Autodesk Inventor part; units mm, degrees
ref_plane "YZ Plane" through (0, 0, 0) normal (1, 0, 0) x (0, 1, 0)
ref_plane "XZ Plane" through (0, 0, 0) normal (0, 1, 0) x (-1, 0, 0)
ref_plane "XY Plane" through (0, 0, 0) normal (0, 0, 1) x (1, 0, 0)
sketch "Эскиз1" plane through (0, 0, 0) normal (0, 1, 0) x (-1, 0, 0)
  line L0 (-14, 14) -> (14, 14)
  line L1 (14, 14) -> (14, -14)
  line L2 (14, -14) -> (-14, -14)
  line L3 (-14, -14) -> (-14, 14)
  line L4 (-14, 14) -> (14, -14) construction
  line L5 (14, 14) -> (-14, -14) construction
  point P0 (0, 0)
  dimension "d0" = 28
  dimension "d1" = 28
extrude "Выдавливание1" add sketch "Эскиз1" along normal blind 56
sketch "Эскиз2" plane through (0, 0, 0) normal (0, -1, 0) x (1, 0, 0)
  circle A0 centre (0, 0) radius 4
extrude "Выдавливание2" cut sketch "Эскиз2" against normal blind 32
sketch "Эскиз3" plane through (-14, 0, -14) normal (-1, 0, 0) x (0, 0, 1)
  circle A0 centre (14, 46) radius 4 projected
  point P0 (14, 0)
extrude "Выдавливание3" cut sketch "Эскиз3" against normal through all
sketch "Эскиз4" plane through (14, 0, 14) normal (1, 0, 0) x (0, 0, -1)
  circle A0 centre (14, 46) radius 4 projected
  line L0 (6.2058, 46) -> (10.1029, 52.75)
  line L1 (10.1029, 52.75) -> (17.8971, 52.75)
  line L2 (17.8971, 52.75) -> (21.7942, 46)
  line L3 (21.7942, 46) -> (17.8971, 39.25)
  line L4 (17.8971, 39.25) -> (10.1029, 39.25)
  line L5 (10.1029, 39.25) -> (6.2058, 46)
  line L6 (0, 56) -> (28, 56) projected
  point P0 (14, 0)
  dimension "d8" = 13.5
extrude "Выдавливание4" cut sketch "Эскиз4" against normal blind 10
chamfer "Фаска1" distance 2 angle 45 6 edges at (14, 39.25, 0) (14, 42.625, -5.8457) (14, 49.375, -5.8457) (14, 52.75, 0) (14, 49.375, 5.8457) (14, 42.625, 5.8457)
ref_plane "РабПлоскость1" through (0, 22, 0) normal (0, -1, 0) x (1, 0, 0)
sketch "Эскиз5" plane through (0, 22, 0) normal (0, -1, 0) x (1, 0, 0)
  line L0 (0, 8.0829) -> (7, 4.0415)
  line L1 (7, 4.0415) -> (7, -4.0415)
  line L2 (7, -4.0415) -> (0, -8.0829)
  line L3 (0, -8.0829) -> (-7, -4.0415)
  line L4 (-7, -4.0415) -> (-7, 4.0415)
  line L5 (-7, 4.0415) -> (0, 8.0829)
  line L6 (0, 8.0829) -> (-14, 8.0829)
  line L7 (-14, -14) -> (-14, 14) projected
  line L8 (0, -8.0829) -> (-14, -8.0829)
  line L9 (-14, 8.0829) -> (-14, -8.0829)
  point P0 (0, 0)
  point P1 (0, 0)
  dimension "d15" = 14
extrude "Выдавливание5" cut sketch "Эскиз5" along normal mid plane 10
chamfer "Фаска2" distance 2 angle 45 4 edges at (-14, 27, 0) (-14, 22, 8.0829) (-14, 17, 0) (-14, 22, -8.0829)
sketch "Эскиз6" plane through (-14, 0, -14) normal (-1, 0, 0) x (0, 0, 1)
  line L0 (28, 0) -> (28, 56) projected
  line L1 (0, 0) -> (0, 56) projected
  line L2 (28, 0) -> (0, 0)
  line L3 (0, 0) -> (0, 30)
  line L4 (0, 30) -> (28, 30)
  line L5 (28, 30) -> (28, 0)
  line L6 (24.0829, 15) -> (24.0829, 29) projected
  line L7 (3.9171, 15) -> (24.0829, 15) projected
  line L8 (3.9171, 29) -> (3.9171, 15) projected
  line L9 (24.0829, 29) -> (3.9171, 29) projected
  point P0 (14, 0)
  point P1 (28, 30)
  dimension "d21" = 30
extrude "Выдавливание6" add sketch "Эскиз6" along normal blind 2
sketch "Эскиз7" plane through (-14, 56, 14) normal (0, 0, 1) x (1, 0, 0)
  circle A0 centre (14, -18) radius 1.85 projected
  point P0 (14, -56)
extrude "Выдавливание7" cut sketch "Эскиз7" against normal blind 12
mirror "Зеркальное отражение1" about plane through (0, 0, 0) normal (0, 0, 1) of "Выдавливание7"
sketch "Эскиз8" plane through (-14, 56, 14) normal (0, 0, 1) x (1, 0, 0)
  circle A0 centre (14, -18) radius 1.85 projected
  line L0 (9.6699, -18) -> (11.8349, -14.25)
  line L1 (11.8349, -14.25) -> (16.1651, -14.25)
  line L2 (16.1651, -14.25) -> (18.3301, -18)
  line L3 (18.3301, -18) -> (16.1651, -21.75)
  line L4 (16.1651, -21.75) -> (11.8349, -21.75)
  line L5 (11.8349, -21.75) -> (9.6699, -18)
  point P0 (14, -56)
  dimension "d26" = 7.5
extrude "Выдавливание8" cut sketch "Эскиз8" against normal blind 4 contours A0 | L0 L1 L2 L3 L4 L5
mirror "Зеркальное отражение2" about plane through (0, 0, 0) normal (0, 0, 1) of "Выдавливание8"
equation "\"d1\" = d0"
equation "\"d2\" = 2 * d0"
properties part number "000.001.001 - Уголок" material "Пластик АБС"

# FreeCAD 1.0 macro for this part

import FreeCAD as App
import Part
import Sketcher

V = App.Vector
Q = App.Units.Quantity


def edges_at(feature, points):
    """Names of the edges that pass closest to the given points."""
    edges = feature.Shape.Edges
    near = lambda p: min(range(len(edges)), key=lambda i: edges[i].distToShape(Part.Vertex(*p))[0])
    return sorted({f"Edge{near(p) + 1}" for p in points})


def add_polygon(sketch, points):
    """Adds a closed chain of lines whose ends are joined by coincident constraints."""
    first, n = sketch.GeometryCount, len(points)
    for a, b in zip(points, points[1:] + points[:1]):
        sketch.addGeometry(Part.LineSegment(App.Vector(*a, 0), App.Vector(*b, 0)), False)
    for i in range(n):
        sketch.addConstraint(Sketcher.Constraint("Coincident", first + i, 2, first + (i + 1) % n, 1))

doc = App.newDocument("Part")
body = doc.addObject("PartDesign::Body", "Body")

sketch1 = doc.addObject("Sketcher::SketchObject", "Sketch")
body.addObject(sketch1)
sketch1.AttachmentSupport = (doc.XZ_Plane, [""])
sketch1.MapMode = "FlatFace"
add_polygon(sketch1, [(-14, 14), (14, 14), (14, -14), (-14, -14)])
sketch1.addConstraint(Sketcher.Constraint("Horizontal", 0))
sketch1.addConstraint(Sketcher.Constraint("Vertical", 1))
sketch1.addConstraint(Sketcher.Constraint("Horizontal", 2))
sketch1.addConstraint(Sketcher.Constraint("Vertical", 3))
sketch1.addConstraint(Sketcher.Constraint("Symmetric", 0, 2, 2, 2, -1, 1))
sketch1.addConstraint(Sketcher.Constraint("Equal", 2, 1))
sketch1.addConstraint(Sketcher.Constraint("DistanceX", 0, 1, 0, 2, 28.0))
pad1 = doc.addObject("PartDesign::Pad", "Pad")
body.addObject(pad1)
pad1.Profile = sketch1
pad1.Length = 56
pad1.Reversed = True

sketch2 = doc.addObject("Sketcher::SketchObject", "Sketch001")
body.addObject(sketch2)
sketch2.AttachmentSupport = (doc.XZ_Plane, [""])
sketch2.MapMode = "FlatFace"
sketch2.addGeometry(Part.Circle(V(0, 0, 0), V(0, 0, 1), 4), False)
sketch2.addConstraint(Sketcher.Constraint("Coincident", 0, 3, -1, 1))
sketch2.addConstraint(Sketcher.Constraint("Diameter", 0, 8.0))
pocket1 = doc.addObject("PartDesign::Pocket", "Pocket")
body.addObject(pocket1)
pocket1.Profile = sketch2
pocket1.Length = 32

sketch3 = doc.addObject("Sketcher::SketchObject", "Sketch002")
body.addObject(sketch3)
sketch3.AttachmentSupport = (doc.YZ_Plane, [""])
sketch3.MapMode = "FlatFace"
sketch3.AttachmentOffset = App.Placement(V(0, 0, -14), App.Rotation())
sketch3.addGeometry(Part.Circle(V(46, 0, 0), V(0, 0, 1), 4), False)
sketch3.addConstraint(Sketcher.Constraint("PointOnObject", 0, 3, -1))
sketch3.addConstraint(Sketcher.Constraint("Diameter", 0, 8.0))
sketch3.addConstraint(Sketcher.Constraint("DistanceX", -1, 1, 0, 3, 46.0))
pocket2 = doc.addObject("PartDesign::Pocket", "Pocket001")
body.addObject(pocket2)
pocket2.Profile = sketch3
pocket2.Type = "ThroughAll"
pocket2.Reversed = True

sketch4 = doc.addObject("Sketcher::SketchObject", "Sketch003")
body.addObject(sketch4)
sketch4.AttachmentSupport = (doc.YZ_Plane, [""])
sketch4.MapMode = "FlatFace"
sketch4.AttachmentOffset = App.Placement(V(0, 0, 14), App.Rotation())
add_polygon(sketch4, [(52.8, 3.9), (46, 7.8), (39.2, 3.9), (39.2, -3.9), (46, -7.8), (52.8, -3.9)])
sketch4.addGeometry(Part.Circle(V(46, 0, 0), V(0, 0, 1), 4), False)
sketch4.addConstraint(Sketcher.Constraint("Vertical", 2))
sketch4.addConstraint(Sketcher.Constraint("Vertical", 5))
sketch4.addConstraint(Sketcher.Constraint("Symmetric", 0, 2, 3, 2, -1))
sketch4.addConstraint(Sketcher.Constraint("PointOnObject", 6, 3, -1))
sketch4.addConstraint(Sketcher.Constraint("Parallel", 0, 3))
sketch4.addConstraint(Sketcher.Constraint("Parallel", 1, 4))
sketch4.addConstraint(Sketcher.Constraint("Horizontal", 2, 2, 4, 2))
sketch4.addConstraint(Sketcher.Constraint("Horizontal", 1, 2, 5, 2))
sketch4.addConstraint(Sketcher.Constraint("Vertical", 6, 3, 0, 2))
sketch4.addConstraint(Sketcher.Constraint("Diameter", 6, 8.0))
sketch4.addConstraint(Sketcher.Constraint("DistanceX", 2, 2, 4, 2, 13.5))
sketch4.addConstraint(Sketcher.Constraint("Angle", 0, Q("150 deg")))
sketch4.addConstraint(Sketcher.Constraint("DistanceX", -1, 1, 6, 3, 46.0))
sketch4.addConstraint(Sketcher.Constraint("DistanceY", 2, 2, 2, 1, 7.7942))
pocket3 = doc.addObject("PartDesign::Pocket", "Pocket002")
body.addObject(pocket3)
pocket3.Profile = sketch4
pocket3.Length = 10
doc.recompute()

chamfer = doc.addObject("PartDesign::Chamfer", "Chamfer")
body.addObject(chamfer)
chamfer.Base = (pocket3, edges_at(pocket3, [
    (14, 39.25, 0),
    (14, 42.625, -5.846),
    (14, 49.375, -5.846),
    (14, 52.75, 0),
    (14, 49.375, 5.846),
    (14, 42.625, 5.846),
]))
chamfer.Size = 2

sketch5 = doc.addObject("Sketcher::SketchObject", "Sketch004")
body.addObject(sketch5)
sketch5.AttachmentSupport = (doc.XZ_Plane, [""])
sketch5.MapMode = "FlatFace"
sketch5.AttachmentOffset = App.Placement(V(0, 0, -22), App.Rotation())
add_polygon(sketch5, [(7, 4), (0, 8), (-14, 8), (-14, -8), (0, -8), (7, -4)])
sketch5.addConstraint(Sketcher.Constraint("Horizontal", 1))
sketch5.addConstraint(Sketcher.Constraint("Vertical", 2))
sketch5.addConstraint(Sketcher.Constraint("Horizontal", 3))
sketch5.addConstraint(Sketcher.Constraint("Vertical", 5))
sketch5.addConstraint(Sketcher.Constraint("Symmetric", 0, 2, 3, 2, -1, 1))
sketch5.addConstraint(Sketcher.Constraint("PointOnObject", 0, 2, -2))
sketch5.addConstraint(Sketcher.Constraint("Equal", 0, 4))
sketch5.addConstraint(Sketcher.Constraint("DistanceX", 1, 2, 1, 1, 14.0))
sketch5.addConstraint(Sketcher.Constraint("Angle", 0, Q("150.0003 deg")))
sketch5.addConstraint(Sketcher.Constraint("DistanceX", -1, 1, 4, 2, 7.0))
sketch5.addConstraint(Sketcher.Constraint("DistanceY", 5, 1, 5, 2, 8.083))
pocket4 = doc.addObject("PartDesign::Pocket", "Pocket003")
body.addObject(pocket4)
pocket4.Profile = sketch5
pocket4.Length = 10
pocket4.Midplane = True
doc.recompute()

chamfer2 = doc.addObject("PartDesign::Chamfer", "Chamfer001")
body.addObject(chamfer2)
chamfer2.Base = (pocket4, edges_at(pocket4, [
    (-14, 27, 0),
    (-14, 22, 8.083),
    (-14, 17, 0),
    (-14, 22, -8.083),
]))
chamfer2.Size = 2

sketch6 = doc.addObject("Sketcher::SketchObject", "Sketch005")
body.addObject(sketch6)
sketch6.AttachmentSupport = (doc.YZ_Plane, [""])
sketch6.MapMode = "FlatFace"
sketch6.AttachmentOffset = App.Placement(V(0, 0, -14), App.Rotation())
add_polygon(sketch6, [(0, -14), (0, 14), (30, 14), (30, -14)])
add_polygon(sketch6, [(29, 10), (15, 10), (15, -10), (29, -10)])
sketch6.addConstraint(Sketcher.Constraint("Vertical", 0))
sketch6.addConstraint(Sketcher.Constraint("Horizontal", 1))
sketch6.addConstraint(Sketcher.Constraint("Vertical", 2))
sketch6.addConstraint(Sketcher.Constraint("Horizontal", 3))
sketch6.addConstraint(Sketcher.Constraint("Horizontal", 4))
sketch6.addConstraint(Sketcher.Constraint("Vertical", 5))
sketch6.addConstraint(Sketcher.Constraint("Horizontal", 6))
sketch6.addConstraint(Sketcher.Constraint("Vertical", 7))
sketch6.addConstraint(Sketcher.Constraint("Symmetric", 0, 2, 3, 2, -1, 1))
sketch6.addConstraint(Sketcher.Constraint("DistanceX", 1, 1, 1, 2, 30.0))
sketch6.addConstraint(Sketcher.Constraint("DistanceX", 4, 2, 4, 1, 14.0))
sketch6.addConstraint(Sketcher.Constraint("DistanceY", 0, 1, 0, 2, 28.0))
sketch6.addConstraint(Sketcher.Constraint("DistanceX", -1, 1, 4, 2, 15.0))
sketch6.addConstraint(Sketcher.Constraint("DistanceY", 5, 2, 5, 1, 20.1658))
sketch6.addConstraint(Sketcher.Constraint("DistanceY", -1, 1, 4, 2, 10.083))
pad2 = doc.addObject("PartDesign::Pad", "Pad001")
body.addObject(pad2)
pad2.Profile = sketch6
pad2.Length = 2
pad2.Reversed = True

sketch7 = doc.addObject("Sketcher::SketchObject", "Sketch006")
body.addObject(sketch7)
sketch7.AttachmentSupport = (doc.XY_Plane, [""])
sketch7.MapMode = "FlatFace"
sketch7.AttachmentOffset = App.Placement(V(0, 0, 14), App.Rotation())
sketch7.addGeometry(Part.Circle(V(0, 38, 0), V(0, 0, 1), 1.9), False)
sketch7.addConstraint(Sketcher.Constraint("PointOnObject", 0, 3, -2))
sketch7.addConstraint(Sketcher.Constraint("Diameter", 0, 3.7))
sketch7.addConstraint(Sketcher.Constraint("DistanceY", -1, 1, 0, 3, 38.0))
pocket5 = doc.addObject("PartDesign::Pocket", "Pocket004")
body.addObject(pocket5)
pocket5.Profile = sketch7
pocket5.Length = 12
doc.recompute()

mirrored = doc.addObject("PartDesign::Mirrored", "Mirrored")
body.addObject(mirrored)
mirrored.Originals = [pocket5]
mirrored.MirrorPlane = (doc.XY_Plane, [""])
body.Tip = mirrored

sketch8 = doc.addObject("Sketcher::SketchObject", "Sketch007")
body.addObject(sketch8)
sketch8.AttachmentSupport = (doc.XY_Plane, [""])
sketch8.MapMode = "FlatFace"
sketch8.AttachmentOffset = App.Placement(V(0, 0, 14), App.Rotation())
add_polygon(sketch8, [(-2.2, 41.8), (-4.3, 38), (-2.2, 34.2), (2.2, 34.2), (4.3, 38), (2.2, 41.8)])
sketch8.addConstraint(Sketcher.Constraint("Horizontal", 2))
sketch8.addConstraint(Sketcher.Constraint("Horizontal", 5))
sketch8.addConstraint(Sketcher.Constraint("Symmetric", 0, 2, 3, 2, -2))
sketch8.addConstraint(Sketcher.Constraint("Parallel", 0, 3))
sketch8.addConstraint(Sketcher.Constraint("Parallel", 1, 4))
sketch8.addConstraint(Sketcher.Constraint("Vertical", 2, 2, 4, 2))
sketch8.addConstraint(Sketcher.Constraint("Vertical", 1, 2, 5, 2))
sketch8.addConstraint(Sketcher.Constraint("DistanceY", 2, 2, 4, 2, 7.5))
sketch8.addConstraint(Sketcher.Constraint("Angle", 0, Q("-119.9993 deg")))
sketch8.addConstraint(Sketcher.Constraint("DistanceY", -1, 1, 0, 2, 38.0))
sketch8.addConstraint(Sketcher.Constraint("DistanceX", 0, 2, -1, 1, 4.33))
pocket6 = doc.addObject("PartDesign::Pocket", "Pocket005")
body.addObject(pocket6)
pocket6.Profile = sketch8
pocket6.Length = 4
doc.recompute()

mirrored2 = doc.addObject("PartDesign::Mirrored", "Mirrored001")
body.addObject(mirrored2)
mirrored2.Originals = [pocket6]
mirrored2.MirrorPlane = (doc.XY_Plane, [""])
body.Tip = mirrored2

doc.recompute()
